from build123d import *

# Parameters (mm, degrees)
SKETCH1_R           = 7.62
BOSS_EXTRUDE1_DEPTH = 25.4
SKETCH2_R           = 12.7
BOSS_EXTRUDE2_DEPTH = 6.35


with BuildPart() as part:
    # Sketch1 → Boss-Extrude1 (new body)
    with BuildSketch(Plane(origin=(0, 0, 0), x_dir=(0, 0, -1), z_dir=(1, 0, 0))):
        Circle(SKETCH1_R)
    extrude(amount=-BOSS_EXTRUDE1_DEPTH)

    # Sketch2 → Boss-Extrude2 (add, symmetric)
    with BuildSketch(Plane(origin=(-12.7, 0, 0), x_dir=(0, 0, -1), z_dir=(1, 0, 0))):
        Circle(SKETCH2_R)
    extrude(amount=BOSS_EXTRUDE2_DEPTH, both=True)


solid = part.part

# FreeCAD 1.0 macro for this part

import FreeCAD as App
import Part
import Sketcher
Q = App.Units.Quantity

doc = App.newDocument("Part")
body = doc.addObject("PartDesign::Body", "Body")

# Sketch on YZ plane
sketch1 = body.newObject("Sketcher::SketchObject", "Sketch")
sketch1.AttachmentSupport = (doc.getObject("YZ_Plane"), [""])
sketch1.MapMode = "FlatFace"
sketch1.addGeometry(Part.Circle(App.Vector(0, 0, 0), App.Vector(0, 0, 1), 8), False)
sketch1.addConstraint([
    Sketcher.Constraint("Coincident", 0, 3, -1, 1),
    Sketcher.Constraint("Diameter", 0, Q("0.6 in")),
])
pad1 = body.newObject("PartDesign::Pad", "Pad")
pad1.Profile = sketch1
pad1.Length = Q("1 in")
pad1.Reversed = True

# Sketch on YZ plane
sketch2 = body.newObject("Sketcher::SketchObject", "Sketch001")
sketch2.AttachmentSupport = (doc.getObject("YZ_Plane"), [""])
sketch2.MapMode = "FlatFace"
sketch2.AttachmentOffset = App.Placement(App.Vector(0, 0, -0.5 * 25.4), App.Rotation())
sketch2.addGeometry(Part.Circle(App.Vector(0, 0, 0), App.Vector(0, 0, 1), 13), False)
sketch2.addConstraint([
    Sketcher.Constraint("Coincident", 0, 3, -1, 1),
    Sketcher.Constraint("Diameter", 0, Q("1 in")),
])
pad2 = body.newObject("PartDesign::Pad", "Pad001")
pad2.Profile = sketch2
pad2.Length = Q("0.5 in")
pad2.Midplane = True

doc.recompute()
